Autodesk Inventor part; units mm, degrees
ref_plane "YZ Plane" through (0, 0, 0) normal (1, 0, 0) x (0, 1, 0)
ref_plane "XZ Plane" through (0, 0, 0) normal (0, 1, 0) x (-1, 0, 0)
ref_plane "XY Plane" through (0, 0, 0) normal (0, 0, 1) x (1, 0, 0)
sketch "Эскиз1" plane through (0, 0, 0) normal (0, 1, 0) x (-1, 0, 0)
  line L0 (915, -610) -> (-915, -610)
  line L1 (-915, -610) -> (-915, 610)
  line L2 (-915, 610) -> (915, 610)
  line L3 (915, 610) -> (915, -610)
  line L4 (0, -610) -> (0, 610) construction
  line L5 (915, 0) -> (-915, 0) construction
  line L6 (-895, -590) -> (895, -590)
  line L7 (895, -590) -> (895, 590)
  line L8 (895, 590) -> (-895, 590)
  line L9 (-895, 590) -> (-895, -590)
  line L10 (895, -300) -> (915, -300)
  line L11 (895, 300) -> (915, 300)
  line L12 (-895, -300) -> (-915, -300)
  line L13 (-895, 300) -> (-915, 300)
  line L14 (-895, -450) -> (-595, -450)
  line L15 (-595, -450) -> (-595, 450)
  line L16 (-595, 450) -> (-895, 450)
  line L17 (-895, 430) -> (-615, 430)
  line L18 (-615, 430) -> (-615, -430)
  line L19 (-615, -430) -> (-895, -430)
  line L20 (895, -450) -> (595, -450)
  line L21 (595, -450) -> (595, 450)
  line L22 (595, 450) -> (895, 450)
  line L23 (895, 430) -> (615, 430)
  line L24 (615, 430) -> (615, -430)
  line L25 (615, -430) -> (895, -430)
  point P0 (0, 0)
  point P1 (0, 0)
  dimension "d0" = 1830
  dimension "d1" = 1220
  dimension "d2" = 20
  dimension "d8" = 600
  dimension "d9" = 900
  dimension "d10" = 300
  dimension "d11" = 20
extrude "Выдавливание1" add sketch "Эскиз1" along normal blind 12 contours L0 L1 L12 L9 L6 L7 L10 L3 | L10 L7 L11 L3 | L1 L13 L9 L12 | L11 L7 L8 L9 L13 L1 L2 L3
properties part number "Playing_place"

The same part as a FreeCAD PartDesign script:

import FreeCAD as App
import Part
import Sketcher

V = App.Vector
Q = App.Units.Quantity


def add_polygon(sketch, points):
    """Adds a closed chain of lines whose ends are joined by coincident constraints."""
    first, n = sketch.GeometryCount, len(points)
    for a, b in zip(points, points[1:] + points[:1]):
        sketch.addGeometry(Part.LineSegment(App.Vector(*a, 0), App.Vector(*b, 0)), False)
    for i in range(n):
        sketch.addConstraint(Sketcher.Constraint("Coincident", first + i, 2, first + (i + 1) % n, 1))

doc = App.newDocument("Part")
params = doc.addObject("Spreadsheet::Sheet", "Params")
for row, (alias, value) in enumerate([
    ("sketch1_width", "1830 mm"),
    ("sketch1_height", "1220 mm"),
    ("pad1_length", "12 mm"),
], start=1):
    params.set(f"A{row}", alias)
    params.set(f"B{row}", "=" + value)
    params.setAlias(f"B{row}", alias)

body = doc.addObject("PartDesign::Body", "Body")

# Sketch on XZ plane
sketch1 = doc.addObject("Sketcher::SketchObject", "Sketch")
body.addObject(sketch1)
sketch1.AttachmentSupport = (doc.XZ_Plane, [""])
sketch1.MapMode = "FlatFace"
add_polygon(sketch1, [(915, -610), (-915, -610), (-915, 610), (915, 610)])  # lines 0-3
add_polygon(sketch1, [(895, 590), (-895, 590), (-895, -590), (895, -590)])  # lines 4-7
sketch1.addConstraint([
    Sketcher.Constraint("Horizontal", 0),
    Sketcher.Constraint("Vertical", 1),
    Sketcher.Constraint("Horizontal", 2),
    Sketcher.Constraint("Vertical", 3),
    Sketcher.Constraint("Horizontal", 4),
    Sketcher.Constraint("Vertical", 5),
    Sketcher.Constraint("Horizontal", 6),
    Sketcher.Constraint("Vertical", 7),
    Sketcher.Constraint("Symmetric", 0, 2, 2, 2, -1, 1),
    Sketcher.Constraint("Symmetric", 4, 2, 6, 2, -1, 1),
    Sketcher.Constraint("DistanceX", 0, 2, 0, 1, Q("1830 mm")),
    Sketcher.Constraint("DistanceY", 1, 1, 1, 2, Q("1220 mm")),
    Sketcher.Constraint("DistanceX", 1, 2, 4, 2, Q("20 mm")),
    Sketcher.Constraint("DistanceY", 4, 2, 1, 2, Q("20 mm")),
])
sketch1.setExpression("Constraints[18]", "Params.sketch1_width")
sketch1.setExpression("Constraints[19]", "Params.sketch1_height")
pad1 = doc.addObject("PartDesign::Pad", "Pad")
body.addObject(pad1)
pad1.Profile = sketch1
pad1.setExpression("Length", "Params.pad1_length")
pad1.Reversed = True

doc.recompute()
